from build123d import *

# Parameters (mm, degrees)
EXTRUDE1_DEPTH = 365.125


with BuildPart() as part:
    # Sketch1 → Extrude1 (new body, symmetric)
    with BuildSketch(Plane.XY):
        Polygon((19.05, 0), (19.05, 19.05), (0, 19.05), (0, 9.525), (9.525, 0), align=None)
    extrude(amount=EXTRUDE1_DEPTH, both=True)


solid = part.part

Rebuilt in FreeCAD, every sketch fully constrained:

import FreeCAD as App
import Part
import Sketcher

V = App.Vector
Q = App.Units.Quantity


def add_polygon(sketch, points):
    """Adds a closed chain of lines whose ends are joined by coincident constraints."""
    first, n = sketch.GeometryCount, len(points)
    for a, b in zip(points, points[1:] + points[:1]):
        sketch.addGeometry(Part.LineSegment(App.Vector(*a, 0), App.Vector(*b, 0)), False)
    for i in range(n):
        sketch.addConstraint(Sketcher.Constraint("Coincident", first + i, 2, first + (i + 1) % n, 1))

doc = App.newDocument("Part")
params = doc.addObject("Spreadsheet::Sheet", "Params")
for row, (alias, value) in enumerate([
    ("sketch1_width", "0.75 in"),
    ("sketch1_width2", "0.375 in"),
    ("pad1_length", "28.75 in"),
], start=1):
    params.set(f"A{row}", alias)
    params.set(f"B{row}", "=" + value)
    params.setAlias(f"B{row}", alias)

body = doc.addObject("PartDesign::Body", "Body")

sketch1 = body.newObject("Sketcher::SketchObject", "Sketch")
sketch1.AttachmentSupport = (doc.getObject("XY_Plane"), [""])
sketch1.MapMode = "FlatFace"
add_polygon(sketch1, [(19, 0), (19, 19), (0, 19), (0, 10), (10, 0)])
sketch1.addConstraint(Sketcher.Constraint("Vertical", 0))
sketch1.addConstraint(Sketcher.Constraint("Horizontal", 1))
sketch1.addConstraint(Sketcher.Constraint("Vertical", 2))
sketch1.addConstraint(Sketcher.Constraint("Horizontal", 4))
sketch1.addConstraint(Sketcher.Constraint("PointOnObject", 1, 2, -2))
sketch1.addConstraint(Sketcher.Constraint("PointOnObject", 3, 2, -1))
sketch1.addConstraint(Sketcher.Constraint("Equal", 1, 0))
sketch1.addConstraint(Sketcher.Constraint("Equal", 4, 2))
sketch1.addConstraint(Sketcher.Constraint("DistanceX", 1, 2, 1, 1, Q("0.75 in")))
sketch1.addConstraint(Sketcher.Constraint("DistanceX", 4, 1, 4, 2, Q("0.375 in")))
sketch1.setExpression("Constraints[13]", "Params.sketch1_width")
sketch1.setExpression("Constraints[14]", "Params.sketch1_width2")
pad1 = body.newObject("PartDesign::Pad", "Pad")
pad1.Profile = sketch1
pad1.setExpression("Length", "Params.pad1_length")
pad1.Midplane = True

doc.recompute()
